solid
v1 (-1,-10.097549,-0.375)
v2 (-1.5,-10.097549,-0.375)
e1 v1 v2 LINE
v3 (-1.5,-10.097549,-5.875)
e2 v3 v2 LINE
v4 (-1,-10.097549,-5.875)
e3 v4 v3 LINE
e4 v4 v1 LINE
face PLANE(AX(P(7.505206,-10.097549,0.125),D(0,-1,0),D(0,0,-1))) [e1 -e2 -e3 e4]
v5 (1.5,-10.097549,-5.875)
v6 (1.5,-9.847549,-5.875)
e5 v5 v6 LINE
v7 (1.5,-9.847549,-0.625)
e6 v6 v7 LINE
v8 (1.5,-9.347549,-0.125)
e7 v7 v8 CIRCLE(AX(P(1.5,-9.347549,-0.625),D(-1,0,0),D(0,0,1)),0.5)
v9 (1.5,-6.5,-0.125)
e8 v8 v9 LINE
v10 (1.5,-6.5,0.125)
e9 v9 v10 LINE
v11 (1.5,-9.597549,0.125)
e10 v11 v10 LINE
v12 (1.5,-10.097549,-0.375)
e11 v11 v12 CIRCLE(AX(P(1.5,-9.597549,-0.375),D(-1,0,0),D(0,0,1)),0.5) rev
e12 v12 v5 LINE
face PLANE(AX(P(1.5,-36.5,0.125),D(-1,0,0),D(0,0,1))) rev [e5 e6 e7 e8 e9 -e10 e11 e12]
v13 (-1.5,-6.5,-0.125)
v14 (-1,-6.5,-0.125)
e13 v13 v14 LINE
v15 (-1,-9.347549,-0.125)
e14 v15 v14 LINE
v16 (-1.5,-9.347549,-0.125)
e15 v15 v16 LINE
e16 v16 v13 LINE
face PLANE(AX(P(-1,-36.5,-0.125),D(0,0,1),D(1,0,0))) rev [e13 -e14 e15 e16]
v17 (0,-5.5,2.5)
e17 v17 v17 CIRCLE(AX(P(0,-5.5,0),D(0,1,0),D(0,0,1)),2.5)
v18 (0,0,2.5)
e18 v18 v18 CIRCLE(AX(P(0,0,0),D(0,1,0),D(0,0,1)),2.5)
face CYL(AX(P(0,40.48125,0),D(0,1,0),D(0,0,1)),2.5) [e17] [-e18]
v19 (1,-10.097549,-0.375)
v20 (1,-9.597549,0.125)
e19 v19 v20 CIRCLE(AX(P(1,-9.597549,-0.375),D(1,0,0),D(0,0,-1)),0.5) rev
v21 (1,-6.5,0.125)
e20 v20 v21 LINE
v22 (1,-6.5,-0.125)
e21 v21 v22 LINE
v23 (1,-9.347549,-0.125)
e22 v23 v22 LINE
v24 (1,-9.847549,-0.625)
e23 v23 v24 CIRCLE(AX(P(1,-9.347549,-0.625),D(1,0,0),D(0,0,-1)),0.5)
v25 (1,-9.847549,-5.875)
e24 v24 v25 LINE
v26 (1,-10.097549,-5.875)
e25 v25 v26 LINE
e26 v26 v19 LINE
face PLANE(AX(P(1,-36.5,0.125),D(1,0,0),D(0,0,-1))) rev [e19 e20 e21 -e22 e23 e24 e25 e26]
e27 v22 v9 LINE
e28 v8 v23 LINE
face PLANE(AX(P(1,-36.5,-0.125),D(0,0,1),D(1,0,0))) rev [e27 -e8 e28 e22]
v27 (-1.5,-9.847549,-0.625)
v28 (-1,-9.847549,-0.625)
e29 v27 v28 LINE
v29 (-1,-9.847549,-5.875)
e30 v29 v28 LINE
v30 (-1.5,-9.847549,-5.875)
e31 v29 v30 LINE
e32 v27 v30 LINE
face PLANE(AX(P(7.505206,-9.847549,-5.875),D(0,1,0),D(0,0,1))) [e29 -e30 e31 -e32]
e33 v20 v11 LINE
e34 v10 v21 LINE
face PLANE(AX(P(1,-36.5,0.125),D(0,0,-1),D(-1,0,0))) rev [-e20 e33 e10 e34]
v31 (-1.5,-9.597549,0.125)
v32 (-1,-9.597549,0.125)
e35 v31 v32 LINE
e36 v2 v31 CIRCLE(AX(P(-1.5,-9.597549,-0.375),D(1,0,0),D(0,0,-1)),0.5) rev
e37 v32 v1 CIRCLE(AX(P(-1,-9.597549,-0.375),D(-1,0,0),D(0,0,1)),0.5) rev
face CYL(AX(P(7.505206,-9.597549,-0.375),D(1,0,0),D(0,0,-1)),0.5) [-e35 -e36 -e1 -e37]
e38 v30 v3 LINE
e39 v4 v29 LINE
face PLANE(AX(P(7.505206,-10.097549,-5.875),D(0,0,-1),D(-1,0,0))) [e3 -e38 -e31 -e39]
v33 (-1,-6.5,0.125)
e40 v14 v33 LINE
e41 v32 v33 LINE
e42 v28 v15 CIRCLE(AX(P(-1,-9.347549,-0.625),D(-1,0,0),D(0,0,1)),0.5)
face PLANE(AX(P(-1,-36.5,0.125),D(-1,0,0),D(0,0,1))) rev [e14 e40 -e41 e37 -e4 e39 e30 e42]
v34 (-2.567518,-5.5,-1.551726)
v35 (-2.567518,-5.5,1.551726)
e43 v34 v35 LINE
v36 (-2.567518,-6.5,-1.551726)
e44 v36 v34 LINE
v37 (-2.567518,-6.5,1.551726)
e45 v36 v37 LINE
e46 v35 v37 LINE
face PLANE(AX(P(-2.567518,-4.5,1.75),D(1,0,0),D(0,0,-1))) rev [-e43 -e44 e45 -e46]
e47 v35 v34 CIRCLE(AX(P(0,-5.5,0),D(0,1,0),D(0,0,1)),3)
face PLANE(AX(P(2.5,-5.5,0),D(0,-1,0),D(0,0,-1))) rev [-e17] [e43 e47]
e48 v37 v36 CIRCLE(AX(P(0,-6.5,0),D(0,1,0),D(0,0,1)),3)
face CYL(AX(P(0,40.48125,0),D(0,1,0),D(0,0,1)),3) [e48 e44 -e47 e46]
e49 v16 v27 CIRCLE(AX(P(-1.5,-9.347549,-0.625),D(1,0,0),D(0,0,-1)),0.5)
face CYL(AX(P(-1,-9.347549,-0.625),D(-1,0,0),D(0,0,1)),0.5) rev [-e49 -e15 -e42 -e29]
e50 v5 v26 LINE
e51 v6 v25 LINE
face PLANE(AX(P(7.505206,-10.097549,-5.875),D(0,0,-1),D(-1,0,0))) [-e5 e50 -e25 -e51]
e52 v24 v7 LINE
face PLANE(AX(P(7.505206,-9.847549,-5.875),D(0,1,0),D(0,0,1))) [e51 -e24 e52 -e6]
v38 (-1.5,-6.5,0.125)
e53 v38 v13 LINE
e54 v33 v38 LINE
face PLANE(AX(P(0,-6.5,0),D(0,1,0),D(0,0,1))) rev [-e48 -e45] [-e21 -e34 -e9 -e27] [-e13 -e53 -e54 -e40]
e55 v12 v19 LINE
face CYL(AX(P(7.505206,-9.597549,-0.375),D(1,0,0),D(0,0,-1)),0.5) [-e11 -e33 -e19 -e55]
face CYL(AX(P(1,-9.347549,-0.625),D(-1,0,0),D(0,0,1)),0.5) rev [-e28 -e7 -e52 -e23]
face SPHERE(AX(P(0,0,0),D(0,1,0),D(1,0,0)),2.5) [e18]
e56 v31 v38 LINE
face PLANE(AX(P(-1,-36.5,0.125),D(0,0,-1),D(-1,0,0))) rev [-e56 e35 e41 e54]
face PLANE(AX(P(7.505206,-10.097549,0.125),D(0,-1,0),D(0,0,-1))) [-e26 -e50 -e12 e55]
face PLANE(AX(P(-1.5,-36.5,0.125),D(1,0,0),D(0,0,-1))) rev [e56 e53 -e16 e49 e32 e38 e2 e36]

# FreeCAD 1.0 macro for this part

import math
import FreeCAD as App
import Part
import Sketcher
Q = App.Units.Quantity


def edges_at(feature, points):
    """Names of the edges that pass closest to the given points."""
    edges = feature.Shape.Edges
    near = lambda p: min(range(len(edges)), key=lambda i: edges[i].distToShape(Part.Vertex(*p))[0])
    return sorted({f"Edge{near(p) + 1}" for p in points})


def add_polygon(sketch, points):
    """Adds a closed chain of lines whose ends are joined by coincident constraints."""
    first, n = sketch.GeometryCount, len(points)
    for a, b in zip(points, points[1:] + points[:1]):
        sketch.addGeometry(Part.LineSegment(App.Vector(*a, 0), App.Vector(*b, 0)), False)
    for i in range(n):
        sketch.addConstraint(Sketcher.Constraint("Coincident", first + i, 2, first + (i + 1) % n, 1))

doc = App.newDocument("Part")
body = doc.addObject("PartDesign::Body", "Body")

# Sketch on XY plane
sketch1 = body.newObject("Sketcher::SketchObject", "Sketch")
sketch1.AttachmentSupport = (doc.getObject("XY_Plane"), [""])
sketch1.MapMode = "FlatFace"
sketch1.addGeometry(Part.LineSegment(App.Vector(0, 2.5, 0), App.Vector(0, -6.5, 0)), False)
sketch1.addGeometry(Part.LineSegment(App.Vector(0, -6.5, 0), App.Vector(3, -6.5, 0)), False)
sketch1.addGeometry(Part.LineSegment(App.Vector(3, -6.5, 0), App.Vector(3, -5.5, 0)), False)
sketch1.addGeometry(Part.LineSegment(App.Vector(3, -5.5, 0), App.Vector(2.5, -5.5, 0)), False)
sketch1.addGeometry(Part.LineSegment(App.Vector(2.5, -5.5, 0), App.Vector(2.5, 0, 0)), False)
sketch1.addGeometry(Part.ArcOfCircle(Part.Circle(App.Vector(0, 0, 0), App.Vector(0, 0, 1), 2.5), math.radians(0), math.radians(90)), False)
sketch1.addConstraint(Sketcher.Constraint("Coincident", 0, 2, 1, 1))
sketch1.addConstraint(Sketcher.Constraint("Coincident", 1, 2, 2, 1))
sketch1.addConstraint(Sketcher.Constraint("Coincident", 2, 2, 3, 1))
sketch1.addConstraint(Sketcher.Constraint("Coincident", 3, 2, 4, 1))
sketch1.addConstraint(Sketcher.Constraint("Tangent", 4, 2, 5, 1))
sketch1.addConstraint(Sketcher.Constraint("Coincident", 5, 2, 0, 1))
sketch1.addConstraint(Sketcher.Constraint("Vertical", 0))
sketch1.addConstraint(Sketcher.Constraint("Horizontal", 1))
sketch1.addConstraint(Sketcher.Constraint("Vertical", 2))
sketch1.addConstraint(Sketcher.Constraint("Horizontal", 3))
sketch1.addConstraint(Sketcher.Constraint("Vertical", 4))
sketch1.addConstraint(Sketcher.Constraint("Coincident", 5, 3, -1, 1))
sketch1.addConstraint(Sketcher.Constraint("PointOnObject", 0, 2, -2))
sketch1.addConstraint(Sketcher.Constraint("Radius", 5, Q("2.5 mm")))
sketch1.addConstraint(Sketcher.Constraint("DistanceX", 1, 1, 1, 2, Q("3 mm")))
sketch1.addConstraint(Sketcher.Constraint("DistanceY", 0, 2, 0, 1, Q("9 mm")))
sketch1.addConstraint(Sketcher.Constraint("DistanceY", 2, 1, 2, 2, Q("1 mm")))
revolution = body.newObject("PartDesign::Revolution", "Revolution")
revolution.Profile = sketch1
revolution.ReferenceAxis = (sketch1, ["V_Axis"])
revolution.Angle = 360

# Sketch on XZ plane
sketch2 = body.newObject("Sketcher::SketchObject", "Sketch001")
sketch2.AttachmentSupport = (doc.getObject("XZ_Plane"), [""])
sketch2.MapMode = "FlatFace"
sketch2.AttachmentOffset = App.Placement(App.Vector(0, 0, 6.5), App.Rotation())
add_polygon(sketch2, [(1, 0.125), (1, -0.125), (1.5, -0.125), (1.5, 0.125)])  # lines 0-3
add_polygon(sketch2, [(-1.5, 0.125), (-1.5, -0.125), (-1, -0.125), (-1, 0.125)])  # lines 4-7
sketch2.addConstraint(Sketcher.Constraint("Vertical", 0))
sketch2.addConstraint(Sketcher.Constraint("Horizontal", 1))
sketch2.addConstraint(Sketcher.Constraint("Vertical", 2))
sketch2.addConstraint(Sketcher.Constraint("Horizontal", 3))
sketch2.addConstraint(Sketcher.Constraint("Vertical", 4))
sketch2.addConstraint(Sketcher.Constraint("Horizontal", 5))
sketch2.addConstraint(Sketcher.Constraint("Vertical", 6))
sketch2.addConstraint(Sketcher.Constraint("Horizontal", 7))
sketch2.addConstraint(Sketcher.Constraint("Symmetric", 2, 2, 4, 2, -1, 1))
sketch2.addConstraint(Sketcher.Constraint("Symmetric", 0, 2, 6, 2, -1, 1))
sketch2.addConstraint(Sketcher.Constraint("Horizontal", 1, 2, 4, 2))
sketch2.addConstraint(Sketcher.Constraint("DistanceX", 1, 1, 1, 2, Q("0.5 mm")))
sketch2.addConstraint(Sketcher.Constraint("DistanceX", -1, 1, 0, 2, Q("1 mm")))
sketch2.addConstraint(Sketcher.Constraint("DistanceY", 0, 2, 0, 1, Q("0.25 mm")))
pad1 = body.newObject("PartDesign::Pad", "Pad")
pad1.Profile = sketch2
pad1.Length = 30

# Sketch on XY plane
sketch3 = body.newObject("Sketcher::SketchObject", "Sketch002")
sketch3.AttachmentSupport = (doc.getObject("XY_Plane"), [""])
sketch3.MapMode = "FlatFace"
add_polygon(sketch3, [(-1.5, -26.5), (-1.5, -36.5), (-1, -36.5), (-1, -26.5)])  # lines 0-3
sketch3.addConstraint(Sketcher.Constraint("Vertical", 0))
sketch3.addConstraint(Sketcher.Constraint("Horizontal", 1))
sketch3.addConstraint(Sketcher.Constraint("Vertical", 2))
sketch3.addConstraint(Sketcher.Constraint("Horizontal", 3))
sketch3.addConstraint(Sketcher.Constraint("DistanceY", 0, 2, 0, 1, Q("10 mm")))
sketch3.addConstraint(Sketcher.Constraint("DistanceX", 1, 1, 1, 2, Q("0.5 mm")))
sketch3.addConstraint(Sketcher.Constraint("DistanceX", 1, 2, -1, 1, Q("1 mm")))
sketch3.addConstraint(Sketcher.Constraint("DistanceY", 0, 2, -1, 1, Q("36.5 mm")))
pocket1 = body.newObject("PartDesign::Pocket", "Pocket")
pocket1.Profile = sketch3
pocket1.Type = "ThroughAll"
pocket1.Midplane = True

# Sketch on XZ plane
sketch4 = body.newObject("Sketcher::SketchObject", "Sketch003")
sketch4.AttachmentSupport = (doc.getObject("XZ_Plane"), [""])
sketch4.MapMode = "FlatFace"
sketch4.AttachmentOffset = App.Placement(App.Vector(0, 0, 6.5), App.Rotation())
add_polygon(sketch4, [(-3.067518, 1.75), (-3.067518, -1.75), (-2.567518, -1.75), (-2.567518, 1.75)])  # lines 0-3
sketch4.addConstraint(Sketcher.Constraint("Vertical", 0))
sketch4.addConstraint(Sketcher.Constraint("Horizontal", 1))
sketch4.addConstraint(Sketcher.Constraint("Vertical", 2))
sketch4.addConstraint(Sketcher.Constraint("Horizontal", 3))
sketch4.addConstraint(Sketcher.Constraint("DistanceX", 1, 1, 1, 2, Q("0.5 mm")))
sketch4.addConstraint(Sketcher.Constraint("DistanceY", 0, 2, 0, 1, Q("3.5 mm")))
sketch4.addConstraint(Sketcher.Constraint("DistanceY", 0, 2, -1, 1, Q("1.75 mm")))
sketch4.addConstraint(Sketcher.Constraint("DistanceX", 0, 2, -1, 1, Q("3.067518 mm")))
pocket2 = body.newObject("PartDesign::Pocket", "Pocket001")
pocket2.Profile = sketch4
pocket2.Length = 2

# Sketch on YZ plane
sketch5 = body.newObject("Sketcher::SketchObject", "Sketch004")
sketch5.AttachmentSupport = (doc.getObject("YZ_Plane"), [""])
sketch5.MapMode = "FlatFace"
sketch5.AttachmentOffset = App.Placement(App.Vector(0, 0, -1.5), App.Rotation())
add_polygon(sketch5, [(-10.097549, -5.875), (-10.097549, 0.125), (-9.847549, -0.125), (-9.847549, -5.875)])  # lines 0-3
sketch5.addConstraint(Sketcher.Constraint("Vertical", 0))
sketch5.addConstraint(Sketcher.Constraint("Vertical", 2))
sketch5.addConstraint(Sketcher.Constraint("Horizontal", 3))
sketch5.addConstraint(Sketcher.Constraint("DistanceY", 0, 1, 0, 2, Q("6 mm")))
sketch5.addConstraint(Sketcher.Constraint("Angle", 1, Q("-45 deg")))
sketch5.addConstraint(Sketcher.Constraint("DistanceX", 3, 2, 3, 1, Q("0.25 mm")))
sketch5.addConstraint(Sketcher.Constraint("DistanceY", -1, 1, 0, 2, Q("0.125 mm")))
sketch5.addConstraint(Sketcher.Constraint("DistanceX", 0, 2, -1, 1, Q("10.097549 mm")))
pad2 = body.newObject("PartDesign::Pad", "Pad001")
pad2.Profile = sketch5
pad2.Length = 3

# Sketch on XY plane
sketch6 = body.newObject("Sketcher::SketchObject", "Sketch005")
sketch6.AttachmentSupport = (doc.getObject("XY_Plane"), [""])
sketch6.MapMode = "FlatFace"
sketch6.AttachmentOffset = App.Placement(App.Vector(0, 0, 0.125), App.Rotation())
add_polygon(sketch6, [(1, -8.951862), (-1, -8.951862), (-1, -10.097549), (-1.5, -10.097549), (-1.5, -37.452172), (1.5, -37.452172), (1.5, -10.097549), (1, -10.097549)])  # lines 0-7
sketch6.addConstraint(Sketcher.Constraint("Horizontal", 0))
sketch6.addConstraint(Sketcher.Constraint("Vertical", 1))
sketch6.addConstraint(Sketcher.Constraint("Horizontal", 2))
sketch6.addConstraint(Sketcher.Constraint("Vertical", 3))
sketch6.addConstraint(Sketcher.Constraint("Horizontal", 4))
sketch6.addConstraint(Sketcher.Constraint("Vertical", 5))
sketch6.addConstraint(Sketcher.Constraint("Horizontal", 6))
sketch6.addConstraint(Sketcher.Constraint("Vertical", 7))
sketch6.addConstraint(Sketcher.Constraint("Symmetric", 2, 2, 5, 2, -2))
sketch6.addConstraint(Sketcher.Constraint("Equal", 2, 6))
sketch6.addConstraint(Sketcher.Constraint("DistanceX", 0, 2, 0, 1, Q("2 mm")))
sketch6.addConstraint(Sketcher.Constraint("DistanceX", 4, 1, 4, 2, Q("3 mm")))
sketch6.addConstraint(Sketcher.Constraint("DistanceY", 1, 2, 1, 1, Q("1.145686 mm")))
sketch6.addConstraint(Sketcher.Constraint("DistanceY", 3, 2, 3, 1, Q("27.354624 mm")))
sketch6.addConstraint(Sketcher.Constraint("DistanceY", 1, 2, -1, 1, Q("10.097549 mm")))
pocket3 = body.newObject("PartDesign::Pocket", "Pocket002")
pocket3.Profile = sketch6
pocket3.Length = 10
doc.recompute()

fillet = body.newObject("PartDesign::Fillet", "Fillet")
fillet.Base = (pocket3, edges_at(pocket3, [
    (1.25, -10.098, 0.125),
    (-1.25, -10.098, 0.125),
    (-1.25, -9.848, -0.125),
    (1.25, -9.848, -0.125),
]))
fillet.Radius = 0.5

doc.recompute()
